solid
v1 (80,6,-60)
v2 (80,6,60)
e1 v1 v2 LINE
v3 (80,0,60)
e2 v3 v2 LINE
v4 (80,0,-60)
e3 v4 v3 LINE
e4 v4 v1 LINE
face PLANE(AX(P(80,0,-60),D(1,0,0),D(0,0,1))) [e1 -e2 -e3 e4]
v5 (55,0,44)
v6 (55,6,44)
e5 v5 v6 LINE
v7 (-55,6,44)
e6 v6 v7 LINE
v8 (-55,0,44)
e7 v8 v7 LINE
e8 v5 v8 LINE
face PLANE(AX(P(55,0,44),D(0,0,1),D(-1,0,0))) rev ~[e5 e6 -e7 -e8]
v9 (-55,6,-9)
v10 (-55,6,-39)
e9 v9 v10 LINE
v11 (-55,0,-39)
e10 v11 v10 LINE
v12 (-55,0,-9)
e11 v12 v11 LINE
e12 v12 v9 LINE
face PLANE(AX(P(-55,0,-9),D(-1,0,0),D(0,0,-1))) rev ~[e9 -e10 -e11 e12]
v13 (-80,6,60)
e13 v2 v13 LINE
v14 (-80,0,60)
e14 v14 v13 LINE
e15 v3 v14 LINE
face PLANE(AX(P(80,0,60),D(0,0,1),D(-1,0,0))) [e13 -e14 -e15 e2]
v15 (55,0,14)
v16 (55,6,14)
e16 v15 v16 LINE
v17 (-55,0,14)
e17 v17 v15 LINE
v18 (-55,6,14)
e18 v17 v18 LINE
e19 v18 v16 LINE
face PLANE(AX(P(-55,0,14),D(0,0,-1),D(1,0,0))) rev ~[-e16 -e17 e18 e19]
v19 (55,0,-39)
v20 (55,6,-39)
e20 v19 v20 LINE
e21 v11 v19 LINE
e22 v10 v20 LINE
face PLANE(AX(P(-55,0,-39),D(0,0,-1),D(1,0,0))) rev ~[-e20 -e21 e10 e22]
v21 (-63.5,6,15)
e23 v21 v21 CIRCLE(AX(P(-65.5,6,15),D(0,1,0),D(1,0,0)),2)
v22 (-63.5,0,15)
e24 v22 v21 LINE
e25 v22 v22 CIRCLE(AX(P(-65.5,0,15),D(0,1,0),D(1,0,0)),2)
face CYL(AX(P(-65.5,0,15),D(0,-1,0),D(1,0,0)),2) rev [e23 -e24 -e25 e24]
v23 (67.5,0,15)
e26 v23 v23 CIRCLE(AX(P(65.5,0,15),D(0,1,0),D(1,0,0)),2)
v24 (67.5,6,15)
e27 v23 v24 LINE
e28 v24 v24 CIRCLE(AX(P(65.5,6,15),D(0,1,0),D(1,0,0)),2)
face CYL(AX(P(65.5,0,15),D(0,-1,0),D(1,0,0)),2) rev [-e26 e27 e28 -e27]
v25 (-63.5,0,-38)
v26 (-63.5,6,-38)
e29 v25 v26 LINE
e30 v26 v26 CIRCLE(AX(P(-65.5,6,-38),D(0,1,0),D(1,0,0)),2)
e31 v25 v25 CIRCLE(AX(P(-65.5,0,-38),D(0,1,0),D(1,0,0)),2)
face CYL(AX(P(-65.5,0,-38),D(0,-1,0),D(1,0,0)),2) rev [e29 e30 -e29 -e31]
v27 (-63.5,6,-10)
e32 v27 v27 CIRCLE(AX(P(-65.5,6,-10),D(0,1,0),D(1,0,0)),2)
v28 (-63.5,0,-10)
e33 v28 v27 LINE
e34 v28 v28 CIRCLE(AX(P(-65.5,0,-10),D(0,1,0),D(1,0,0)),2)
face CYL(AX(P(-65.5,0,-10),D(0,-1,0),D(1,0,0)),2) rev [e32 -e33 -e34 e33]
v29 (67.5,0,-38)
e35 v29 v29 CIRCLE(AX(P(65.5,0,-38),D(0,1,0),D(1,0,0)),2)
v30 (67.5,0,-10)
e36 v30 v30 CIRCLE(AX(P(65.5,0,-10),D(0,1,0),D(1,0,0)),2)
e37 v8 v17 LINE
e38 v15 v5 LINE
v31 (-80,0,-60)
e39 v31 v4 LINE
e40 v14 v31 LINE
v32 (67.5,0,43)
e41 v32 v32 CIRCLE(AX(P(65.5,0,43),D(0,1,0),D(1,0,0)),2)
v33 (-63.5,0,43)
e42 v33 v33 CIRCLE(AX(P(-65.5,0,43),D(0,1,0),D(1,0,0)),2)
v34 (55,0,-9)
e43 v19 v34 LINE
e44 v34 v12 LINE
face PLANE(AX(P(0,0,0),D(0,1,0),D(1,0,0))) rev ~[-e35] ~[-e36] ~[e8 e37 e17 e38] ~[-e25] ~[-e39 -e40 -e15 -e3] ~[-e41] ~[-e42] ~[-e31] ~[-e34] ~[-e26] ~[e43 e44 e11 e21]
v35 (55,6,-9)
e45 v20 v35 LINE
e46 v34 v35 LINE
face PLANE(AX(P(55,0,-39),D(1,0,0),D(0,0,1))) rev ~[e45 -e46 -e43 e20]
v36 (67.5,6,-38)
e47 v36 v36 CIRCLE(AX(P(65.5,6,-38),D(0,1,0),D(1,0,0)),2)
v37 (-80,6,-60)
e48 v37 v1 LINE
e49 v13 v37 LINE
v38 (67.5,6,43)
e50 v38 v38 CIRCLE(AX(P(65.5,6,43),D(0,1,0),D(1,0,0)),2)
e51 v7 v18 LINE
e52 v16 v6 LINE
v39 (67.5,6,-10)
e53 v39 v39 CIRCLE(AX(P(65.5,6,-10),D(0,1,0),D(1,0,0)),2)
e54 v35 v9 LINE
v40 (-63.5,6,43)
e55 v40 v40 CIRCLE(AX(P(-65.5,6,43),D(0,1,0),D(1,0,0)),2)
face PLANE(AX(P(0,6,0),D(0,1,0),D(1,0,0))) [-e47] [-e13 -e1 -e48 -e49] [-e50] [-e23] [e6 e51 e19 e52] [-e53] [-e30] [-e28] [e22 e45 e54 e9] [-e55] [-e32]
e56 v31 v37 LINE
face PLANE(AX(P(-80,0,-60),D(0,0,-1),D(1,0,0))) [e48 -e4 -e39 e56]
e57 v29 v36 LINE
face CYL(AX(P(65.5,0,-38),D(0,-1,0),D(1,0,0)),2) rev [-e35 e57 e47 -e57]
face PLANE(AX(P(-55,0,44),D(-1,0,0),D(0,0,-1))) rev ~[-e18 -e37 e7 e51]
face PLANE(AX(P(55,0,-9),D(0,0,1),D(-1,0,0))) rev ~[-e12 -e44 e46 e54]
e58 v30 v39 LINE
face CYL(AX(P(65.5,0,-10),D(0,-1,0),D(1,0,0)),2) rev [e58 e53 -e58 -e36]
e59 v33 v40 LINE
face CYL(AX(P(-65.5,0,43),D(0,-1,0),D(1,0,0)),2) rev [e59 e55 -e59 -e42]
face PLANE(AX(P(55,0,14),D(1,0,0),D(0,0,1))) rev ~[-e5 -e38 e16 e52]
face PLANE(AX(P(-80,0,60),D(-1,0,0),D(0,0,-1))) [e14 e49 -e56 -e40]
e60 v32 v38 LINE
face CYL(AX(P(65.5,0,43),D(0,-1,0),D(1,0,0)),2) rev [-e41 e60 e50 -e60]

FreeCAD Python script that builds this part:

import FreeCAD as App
import Part
import Sketcher
from FreeCAD import Vector


def add_polygon(sketch, points):
    """Adds a closed chain of lines whose ends are joined by coincident constraints."""
    first, n = sketch.GeometryCount, len(points)
    for a, b in zip(points, points[1:] + points[:1]):
        sketch.addGeometry(Part.LineSegment(App.Vector(*a, 0), App.Vector(*b, 0)), False)
    for i in range(n):
        sketch.addConstraint(Sketcher.Constraint("Coincident", first + i, 2, first + (i + 1) % n, 1))

doc = App.newDocument("Part")
body = doc.addObject("PartDesign::Body", "Body")

sketch1 = body.newObject("Sketcher::SketchObject", "Sketch")
sketch1.AttachmentSupport = (doc.getObject("XZ_Plane"), [""])
sketch1.MapMode = "FlatFace"
add_polygon(sketch1, [(-80, 60), (80, 60), (80, -60), (-80, -60)])
sketch1.addGeometry(Part.Circle(Vector(-65.5, 43, 0), Vector(0, 0, 1), 2), False)
sketch1.addGeometry(Part.Circle(Vector(-65.5, 15, 0), Vector(0, 0, 1), 2), False)
sketch1.addGeometry(Part.Circle(Vector(65.5, 43, 0), Vector(0, 0, 1), 2), False)
add_polygon(sketch1, [(55, 14), (55, 44), (-55, 44), (-55, 14)])
sketch1.addGeometry(Part.Circle(Vector(65.5, 15, 0), Vector(0, 0, 1), 2), False)
sketch1.addGeometry(Part.Circle(Vector(-65.5, -10, 0), Vector(0, 0, 1), 2), False)
sketch1.addGeometry(Part.Circle(Vector(-65.5, -38, 0), Vector(0, 0, 1), 2), False)
add_polygon(sketch1, [(55, -39), (55, -9), (-55, -9), (-55, -39)])
sketch1.addGeometry(Part.Circle(Vector(65.5, -10, 0), Vector(0, 0, 1), 2), False)
sketch1.addGeometry(Part.Circle(Vector(65.5, -38, 0), Vector(0, 0, 1), 2), False)
sketch1.addConstraint([
    Sketcher.Constraint("Horizontal", 0),
    Sketcher.Constraint("Vertical", 1),
    Sketcher.Constraint("Horizontal", 2),
    Sketcher.Constraint("Vertical", 3),
    Sketcher.Constraint("Vertical", 7),
    Sketcher.Constraint("Horizontal", 8),
    Sketcher.Constraint("Vertical", 9),
    Sketcher.Constraint("Horizontal", 10),
    Sketcher.Constraint("Vertical", 14),
    Sketcher.Constraint("Horizontal", 15),
    Sketcher.Constraint("Vertical", 16),
    Sketcher.Constraint("Horizontal", 17),
    Sketcher.Constraint("Equal", 4, 5),
    Sketcher.Constraint("Equal", 5, 6),
    Sketcher.Constraint("Equal", 6, 11),
    Sketcher.Constraint("Equal", 11, 12),
    Sketcher.Constraint("Equal", 12, 13),
    Sketcher.Constraint("Equal", 13, 18),
    Sketcher.Constraint("Equal", 18, 19),
    Sketcher.Constraint("Symmetric", 0, 2, 2, 2, -1, 1),
    Sketcher.Constraint("Symmetric", 4, 3, 6, 3, -2),
    Sketcher.Constraint("Symmetric", 5, 3, 11, 3, -2),
    Sketcher.Constraint("Symmetric", 12, 3, 18, 3, -2),
    Sketcher.Constraint("Symmetric", 13, 3, 19, 3, -2),
    Sketcher.Constraint("Vertical", 4, 3, 5, 3),
    Sketcher.Constraint("Vertical", 5, 3, 12, 3),
    Sketcher.Constraint("Vertical", 12, 3, 13, 3),
    Sketcher.Constraint("Vertical", 10, 2, 14, 2),
    Sketcher.Constraint("Vertical", 9, 2, 15, 2),
    Sketcher.Constraint("Equal", 9, 14),
    Sketcher.Constraint("Diameter", 4, 4.0),
    Sketcher.Constraint("DistanceX", 0, 1, 0, 2, 160.0),
    Sketcher.Constraint("DistanceX", 8, 2, 8, 1, 110.0),
    Sketcher.Constraint("DistanceY", 1, 2, 1, 1, 120.0),
    Sketcher.Constraint("DistanceY", 7, 1, 7, 2, 30.0),
    Sketcher.Constraint("DistanceY", -1, 1, 5, 3, 15.0),
    Sketcher.Constraint("DistanceY", 12, 3, -1, 1, 10.0),
    Sketcher.Constraint("DistanceY", 5, 3, 4, 3, 28.0),
    Sketcher.Constraint("DistanceX", 4, 3, 6, 3, 131.0),
    Sketcher.Constraint("DistanceY", 13, 3, 12, 3, 28.0),
    Sketcher.Constraint("DistanceX", -1, 1, 7, 2, 55.0),
    Sketcher.Constraint("DistanceY", -1, 1, 7, 2, 44.0),
    Sketcher.Constraint("DistanceY", 14, 2, -1, 1, 9.0),
])
pad1 = body.newObject("PartDesign::Pad", "Pad")
pad1.Profile = sketch1
pad1.Length = 6
pad1.Reversed = True

doc.recompute()
